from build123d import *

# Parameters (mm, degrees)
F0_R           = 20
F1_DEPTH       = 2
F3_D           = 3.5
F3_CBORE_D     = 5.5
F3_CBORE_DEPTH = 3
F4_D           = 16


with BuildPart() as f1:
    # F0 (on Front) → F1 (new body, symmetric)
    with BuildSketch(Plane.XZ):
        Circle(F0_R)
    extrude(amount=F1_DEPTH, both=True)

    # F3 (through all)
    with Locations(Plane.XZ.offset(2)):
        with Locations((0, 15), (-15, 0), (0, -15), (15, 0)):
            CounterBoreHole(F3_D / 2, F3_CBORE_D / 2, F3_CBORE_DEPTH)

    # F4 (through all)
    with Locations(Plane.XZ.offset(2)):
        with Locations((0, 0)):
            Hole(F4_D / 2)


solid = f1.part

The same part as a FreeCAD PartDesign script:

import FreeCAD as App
import Part
import Sketcher

doc = App.newDocument("Part")
params = doc.addObject("Spreadsheet::Sheet", "Params")
for row, (alias, value) in enumerate([
    ("sketch1_diameter", "40 mm"),
    ("pad1_length", "4 mm"),
    ("sketch2_diameter", "3.5 mm"),
    ("hole_diameter", "3.5 mm"),
    ("hole_cbore_diameter", "5.5 mm"),
    ("hole_cbore_depth", "3 mm"),
    ("sketch3_diameter", "16 mm"),
    ("hole2_diameter", "16 mm"),
], start=1):
    params.set(f"A{row}", alias)
    params.set(f"B{row}", "=" + value)
    params.setAlias(f"B{row}", alias)

body = doc.addObject("PartDesign::Body", "Body")

# Sketch on XZ plane
sketch1 = doc.addObject("Sketcher::SketchObject", "Sketch")
body.addObject(sketch1)
sketch1.AttachmentSupport = (doc.XZ_Plane, [""])
sketch1.MapMode = "FlatFace"
sketch1.addGeometry(Part.Circle(App.Vector(0, 0, 0), App.Vector(0, 0, 1), 20), False)
sketch1.addConstraint(Sketcher.Constraint("Coincident", 0, 3, -1, 1))
sketch1.addConstraint(Sketcher.Constraint("Diameter", 0, 40.0))
sketch1.setExpression("Constraints[1]", "Params.sketch1_diameter")
pad1 = doc.addObject("PartDesign::Pad", "Pad")
body.addObject(pad1)
pad1.Profile = sketch1
pad1.setExpression("Length", "Params.pad1_length")
pad1.Midplane = True

# Sketch on XZ plane
sketch2 = doc.addObject("Sketcher::SketchObject", "Sketch001")
body.addObject(sketch2)
sketch2.AttachmentSupport = (doc.XZ_Plane, [""])
sketch2.MapMode = "FlatFace"
sketch2.AttachmentOffset = App.Placement(App.Vector(0, 0, 2), App.Rotation())
sketch2.addGeometry(Part.Circle(App.Vector(0, 15, 0), App.Vector(0, 0, 1), 1.8), False)
sketch2.addGeometry(Part.Circle(App.Vector(-15, 0, 0), App.Vector(0, 0, 1), 1.8), False)
sketch2.addGeometry(Part.Circle(App.Vector(0, -15, 0), App.Vector(0, 0, 1), 1.8), False)
sketch2.addGeometry(Part.Circle(App.Vector(15, 0, 0), App.Vector(0, 0, 1), 1.8), False)
sketch2.addConstraint(Sketcher.Constraint("Equal", 0, 1))
sketch2.addConstraint(Sketcher.Constraint("Equal", 1, 2))
sketch2.addConstraint(Sketcher.Constraint("Equal", 2, 3))
sketch2.addConstraint(Sketcher.Constraint("Symmetric", 0, 3, 2, 3, -1, 1))
sketch2.addConstraint(Sketcher.Constraint("Symmetric", 1, 3, 3, 3, -1, 1))
sketch2.addConstraint(Sketcher.Constraint("PointOnObject", 0, 3, -2))
sketch2.addConstraint(Sketcher.Constraint("PointOnObject", 1, 3, -1))
sketch2.addConstraint(Sketcher.Constraint("Diameter", 0, 3.5))
sketch2.addConstraint(Sketcher.Constraint("DistanceY", -1, 1, 0, 3, 15.0))
sketch2.addConstraint(Sketcher.Constraint("DistanceX", 1, 3, -1, 1, 15.0))
sketch2.setExpression("Constraints[7]", "Params.sketch2_diameter")
doc.recompute()
hole = doc.addObject("PartDesign::Hole", "Hole")
body.addObject(hole)
hole.Profile = sketch2
hole.ThreadType = "None"
hole.setExpression("Diameter", "Params.hole_diameter")
hole.DepthType = "ThroughAll"
hole.HoleCutType = "Counterbore"
hole.setExpression("HoleCutDiameter", "Params.hole_cbore_diameter")
hole.setExpression("HoleCutDepth", "Params.hole_cbore_depth")

# Sketch on XZ plane
sketch3 = doc.addObject("Sketcher::SketchObject", "Sketch002")
body.addObject(sketch3)
sketch3.AttachmentSupport = (doc.XZ_Plane, [""])
sketch3.MapMode = "FlatFace"
sketch3.AttachmentOffset = App.Placement(App.Vector(0, 0, 2), App.Rotation())
sketch3.addGeometry(Part.Circle(App.Vector(0, 0, 0), App.Vector(0, 0, 1), 8), False)
sketch3.addConstraint(Sketcher.Constraint("Coincident", 0, 3, -1, 1))
sketch3.addConstraint(Sketcher.Constraint("Diameter", 0, 16.0))
sketch3.setExpression("Constraints[1]", "Params.sketch3_diameter")
doc.recompute()
hole2 = doc.addObject("PartDesign::Hole", "Hole001")
body.addObject(hole2)
hole2.Profile = sketch3
hole2.ThreadType = "None"
hole2.setExpression("Diameter", "Params.hole2_diameter")
hole2.DepthType = "ThroughAll"

doc.recompute()
